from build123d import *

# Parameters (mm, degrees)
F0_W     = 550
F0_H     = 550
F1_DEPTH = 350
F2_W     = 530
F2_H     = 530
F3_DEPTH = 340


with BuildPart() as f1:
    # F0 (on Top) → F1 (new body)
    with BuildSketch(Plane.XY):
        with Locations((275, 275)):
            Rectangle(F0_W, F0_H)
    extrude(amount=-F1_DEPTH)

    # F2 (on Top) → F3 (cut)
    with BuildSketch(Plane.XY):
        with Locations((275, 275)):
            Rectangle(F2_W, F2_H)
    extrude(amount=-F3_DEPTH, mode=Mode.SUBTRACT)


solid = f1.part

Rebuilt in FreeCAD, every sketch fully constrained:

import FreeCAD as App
import Part
import Sketcher

V = App.Vector

doc = App.newDocument("Part")
body = doc.addObject("PartDesign::Body", "Body")

# Sketch on XY plane
sketch1 = body.newObject("Sketcher::SketchObject", "Sketch")
sketch1.AttachmentSupport = (doc.getObject("XY_Plane"), [""])
sketch1.MapMode = "FlatFace"
sketch1.addGeometry(Part.LineSegment(V(0, 550, 0), V(0, 0, 0)), False)
sketch1.addGeometry(Part.LineSegment(V(0, 0, 0), V(550, 0, 0)), False)
sketch1.addGeometry(Part.LineSegment(V(550, 0, 0), V(550, 550, 0)), False)
sketch1.addGeometry(Part.LineSegment(V(550, 550, 0), V(0, 550, 0)), False)
sketch1.addConstraint(Sketcher.Constraint("Coincident", 0, 2, 1, 1))
sketch1.addConstraint(Sketcher.Constraint("Coincident", 1, 2, 2, 1))
sketch1.addConstraint(Sketcher.Constraint("Coincident", 2, 2, 3, 1))
sketch1.addConstraint(Sketcher.Constraint("Coincident", 3, 2, 0, 1))
sketch1.addConstraint(Sketcher.Constraint("Vertical", 0))
sketch1.addConstraint(Sketcher.Constraint("Horizontal", 1))
sketch1.addConstraint(Sketcher.Constraint("Vertical", 2))
sketch1.addConstraint(Sketcher.Constraint("Horizontal", 3))
sketch1.addConstraint(Sketcher.Constraint("Coincident", 0, 2, -1, 1))
sketch1.addConstraint(Sketcher.Constraint("Equal", 3, 0))
sketch1.addConstraint(Sketcher.Constraint("DistanceX", 1, 1, 1, 2, 550.0))
pad1 = body.newObject("PartDesign::Pad", "Pad")
pad1.Profile = sketch1
pad1.Length = 350
pad1.Reversed = True

# Sketch on XY plane
sketch2 = body.newObject("Sketcher::SketchObject", "Sketch001")
sketch2.AttachmentSupport = (doc.getObject("XY_Plane"), [""])
sketch2.MapMode = "FlatFace"
sketch2.addGeometry(Part.LineSegment(V(10, 540, 0), V(10, 10, 0)), False)
sketch2.addGeometry(Part.LineSegment(V(10, 10, 0), V(540, 10, 0)), False)
sketch2.addGeometry(Part.LineSegment(V(540, 10, 0), V(540, 540, 0)), False)
sketch2.addGeometry(Part.LineSegment(V(540, 540, 0), V(10, 540, 0)), False)
sketch2.addConstraint(Sketcher.Constraint("Coincident", 0, 2, 1, 1))
sketch2.addConstraint(Sketcher.Constraint("Coincident", 1, 2, 2, 1))
sketch2.addConstraint(Sketcher.Constraint("Coincident", 2, 2, 3, 1))
sketch2.addConstraint(Sketcher.Constraint("Coincident", 3, 2, 0, 1))
sketch2.addConstraint(Sketcher.Constraint("Vertical", 0))
sketch2.addConstraint(Sketcher.Constraint("Horizontal", 1))
sketch2.addConstraint(Sketcher.Constraint("Vertical", 2))
sketch2.addConstraint(Sketcher.Constraint("Horizontal", 3))
sketch2.addConstraint(Sketcher.Constraint("Equal", 3, 0))
sketch2.addConstraint(Sketcher.Constraint("DistanceX", 1, 1, 1, 2, 530.0))
sketch2.addConstraint(Sketcher.Constraint("DistanceX", -1, 1, 0, 2, 10.0))
sketch2.addConstraint(Sketcher.Constraint("DistanceY", -1, 1, 0, 2, 10.0))
pocket1 = body.newObject("PartDesign::Pocket", "Pocket")
pocket1.Profile = sketch2
pocket1.Length = 340

doc.recompute()
